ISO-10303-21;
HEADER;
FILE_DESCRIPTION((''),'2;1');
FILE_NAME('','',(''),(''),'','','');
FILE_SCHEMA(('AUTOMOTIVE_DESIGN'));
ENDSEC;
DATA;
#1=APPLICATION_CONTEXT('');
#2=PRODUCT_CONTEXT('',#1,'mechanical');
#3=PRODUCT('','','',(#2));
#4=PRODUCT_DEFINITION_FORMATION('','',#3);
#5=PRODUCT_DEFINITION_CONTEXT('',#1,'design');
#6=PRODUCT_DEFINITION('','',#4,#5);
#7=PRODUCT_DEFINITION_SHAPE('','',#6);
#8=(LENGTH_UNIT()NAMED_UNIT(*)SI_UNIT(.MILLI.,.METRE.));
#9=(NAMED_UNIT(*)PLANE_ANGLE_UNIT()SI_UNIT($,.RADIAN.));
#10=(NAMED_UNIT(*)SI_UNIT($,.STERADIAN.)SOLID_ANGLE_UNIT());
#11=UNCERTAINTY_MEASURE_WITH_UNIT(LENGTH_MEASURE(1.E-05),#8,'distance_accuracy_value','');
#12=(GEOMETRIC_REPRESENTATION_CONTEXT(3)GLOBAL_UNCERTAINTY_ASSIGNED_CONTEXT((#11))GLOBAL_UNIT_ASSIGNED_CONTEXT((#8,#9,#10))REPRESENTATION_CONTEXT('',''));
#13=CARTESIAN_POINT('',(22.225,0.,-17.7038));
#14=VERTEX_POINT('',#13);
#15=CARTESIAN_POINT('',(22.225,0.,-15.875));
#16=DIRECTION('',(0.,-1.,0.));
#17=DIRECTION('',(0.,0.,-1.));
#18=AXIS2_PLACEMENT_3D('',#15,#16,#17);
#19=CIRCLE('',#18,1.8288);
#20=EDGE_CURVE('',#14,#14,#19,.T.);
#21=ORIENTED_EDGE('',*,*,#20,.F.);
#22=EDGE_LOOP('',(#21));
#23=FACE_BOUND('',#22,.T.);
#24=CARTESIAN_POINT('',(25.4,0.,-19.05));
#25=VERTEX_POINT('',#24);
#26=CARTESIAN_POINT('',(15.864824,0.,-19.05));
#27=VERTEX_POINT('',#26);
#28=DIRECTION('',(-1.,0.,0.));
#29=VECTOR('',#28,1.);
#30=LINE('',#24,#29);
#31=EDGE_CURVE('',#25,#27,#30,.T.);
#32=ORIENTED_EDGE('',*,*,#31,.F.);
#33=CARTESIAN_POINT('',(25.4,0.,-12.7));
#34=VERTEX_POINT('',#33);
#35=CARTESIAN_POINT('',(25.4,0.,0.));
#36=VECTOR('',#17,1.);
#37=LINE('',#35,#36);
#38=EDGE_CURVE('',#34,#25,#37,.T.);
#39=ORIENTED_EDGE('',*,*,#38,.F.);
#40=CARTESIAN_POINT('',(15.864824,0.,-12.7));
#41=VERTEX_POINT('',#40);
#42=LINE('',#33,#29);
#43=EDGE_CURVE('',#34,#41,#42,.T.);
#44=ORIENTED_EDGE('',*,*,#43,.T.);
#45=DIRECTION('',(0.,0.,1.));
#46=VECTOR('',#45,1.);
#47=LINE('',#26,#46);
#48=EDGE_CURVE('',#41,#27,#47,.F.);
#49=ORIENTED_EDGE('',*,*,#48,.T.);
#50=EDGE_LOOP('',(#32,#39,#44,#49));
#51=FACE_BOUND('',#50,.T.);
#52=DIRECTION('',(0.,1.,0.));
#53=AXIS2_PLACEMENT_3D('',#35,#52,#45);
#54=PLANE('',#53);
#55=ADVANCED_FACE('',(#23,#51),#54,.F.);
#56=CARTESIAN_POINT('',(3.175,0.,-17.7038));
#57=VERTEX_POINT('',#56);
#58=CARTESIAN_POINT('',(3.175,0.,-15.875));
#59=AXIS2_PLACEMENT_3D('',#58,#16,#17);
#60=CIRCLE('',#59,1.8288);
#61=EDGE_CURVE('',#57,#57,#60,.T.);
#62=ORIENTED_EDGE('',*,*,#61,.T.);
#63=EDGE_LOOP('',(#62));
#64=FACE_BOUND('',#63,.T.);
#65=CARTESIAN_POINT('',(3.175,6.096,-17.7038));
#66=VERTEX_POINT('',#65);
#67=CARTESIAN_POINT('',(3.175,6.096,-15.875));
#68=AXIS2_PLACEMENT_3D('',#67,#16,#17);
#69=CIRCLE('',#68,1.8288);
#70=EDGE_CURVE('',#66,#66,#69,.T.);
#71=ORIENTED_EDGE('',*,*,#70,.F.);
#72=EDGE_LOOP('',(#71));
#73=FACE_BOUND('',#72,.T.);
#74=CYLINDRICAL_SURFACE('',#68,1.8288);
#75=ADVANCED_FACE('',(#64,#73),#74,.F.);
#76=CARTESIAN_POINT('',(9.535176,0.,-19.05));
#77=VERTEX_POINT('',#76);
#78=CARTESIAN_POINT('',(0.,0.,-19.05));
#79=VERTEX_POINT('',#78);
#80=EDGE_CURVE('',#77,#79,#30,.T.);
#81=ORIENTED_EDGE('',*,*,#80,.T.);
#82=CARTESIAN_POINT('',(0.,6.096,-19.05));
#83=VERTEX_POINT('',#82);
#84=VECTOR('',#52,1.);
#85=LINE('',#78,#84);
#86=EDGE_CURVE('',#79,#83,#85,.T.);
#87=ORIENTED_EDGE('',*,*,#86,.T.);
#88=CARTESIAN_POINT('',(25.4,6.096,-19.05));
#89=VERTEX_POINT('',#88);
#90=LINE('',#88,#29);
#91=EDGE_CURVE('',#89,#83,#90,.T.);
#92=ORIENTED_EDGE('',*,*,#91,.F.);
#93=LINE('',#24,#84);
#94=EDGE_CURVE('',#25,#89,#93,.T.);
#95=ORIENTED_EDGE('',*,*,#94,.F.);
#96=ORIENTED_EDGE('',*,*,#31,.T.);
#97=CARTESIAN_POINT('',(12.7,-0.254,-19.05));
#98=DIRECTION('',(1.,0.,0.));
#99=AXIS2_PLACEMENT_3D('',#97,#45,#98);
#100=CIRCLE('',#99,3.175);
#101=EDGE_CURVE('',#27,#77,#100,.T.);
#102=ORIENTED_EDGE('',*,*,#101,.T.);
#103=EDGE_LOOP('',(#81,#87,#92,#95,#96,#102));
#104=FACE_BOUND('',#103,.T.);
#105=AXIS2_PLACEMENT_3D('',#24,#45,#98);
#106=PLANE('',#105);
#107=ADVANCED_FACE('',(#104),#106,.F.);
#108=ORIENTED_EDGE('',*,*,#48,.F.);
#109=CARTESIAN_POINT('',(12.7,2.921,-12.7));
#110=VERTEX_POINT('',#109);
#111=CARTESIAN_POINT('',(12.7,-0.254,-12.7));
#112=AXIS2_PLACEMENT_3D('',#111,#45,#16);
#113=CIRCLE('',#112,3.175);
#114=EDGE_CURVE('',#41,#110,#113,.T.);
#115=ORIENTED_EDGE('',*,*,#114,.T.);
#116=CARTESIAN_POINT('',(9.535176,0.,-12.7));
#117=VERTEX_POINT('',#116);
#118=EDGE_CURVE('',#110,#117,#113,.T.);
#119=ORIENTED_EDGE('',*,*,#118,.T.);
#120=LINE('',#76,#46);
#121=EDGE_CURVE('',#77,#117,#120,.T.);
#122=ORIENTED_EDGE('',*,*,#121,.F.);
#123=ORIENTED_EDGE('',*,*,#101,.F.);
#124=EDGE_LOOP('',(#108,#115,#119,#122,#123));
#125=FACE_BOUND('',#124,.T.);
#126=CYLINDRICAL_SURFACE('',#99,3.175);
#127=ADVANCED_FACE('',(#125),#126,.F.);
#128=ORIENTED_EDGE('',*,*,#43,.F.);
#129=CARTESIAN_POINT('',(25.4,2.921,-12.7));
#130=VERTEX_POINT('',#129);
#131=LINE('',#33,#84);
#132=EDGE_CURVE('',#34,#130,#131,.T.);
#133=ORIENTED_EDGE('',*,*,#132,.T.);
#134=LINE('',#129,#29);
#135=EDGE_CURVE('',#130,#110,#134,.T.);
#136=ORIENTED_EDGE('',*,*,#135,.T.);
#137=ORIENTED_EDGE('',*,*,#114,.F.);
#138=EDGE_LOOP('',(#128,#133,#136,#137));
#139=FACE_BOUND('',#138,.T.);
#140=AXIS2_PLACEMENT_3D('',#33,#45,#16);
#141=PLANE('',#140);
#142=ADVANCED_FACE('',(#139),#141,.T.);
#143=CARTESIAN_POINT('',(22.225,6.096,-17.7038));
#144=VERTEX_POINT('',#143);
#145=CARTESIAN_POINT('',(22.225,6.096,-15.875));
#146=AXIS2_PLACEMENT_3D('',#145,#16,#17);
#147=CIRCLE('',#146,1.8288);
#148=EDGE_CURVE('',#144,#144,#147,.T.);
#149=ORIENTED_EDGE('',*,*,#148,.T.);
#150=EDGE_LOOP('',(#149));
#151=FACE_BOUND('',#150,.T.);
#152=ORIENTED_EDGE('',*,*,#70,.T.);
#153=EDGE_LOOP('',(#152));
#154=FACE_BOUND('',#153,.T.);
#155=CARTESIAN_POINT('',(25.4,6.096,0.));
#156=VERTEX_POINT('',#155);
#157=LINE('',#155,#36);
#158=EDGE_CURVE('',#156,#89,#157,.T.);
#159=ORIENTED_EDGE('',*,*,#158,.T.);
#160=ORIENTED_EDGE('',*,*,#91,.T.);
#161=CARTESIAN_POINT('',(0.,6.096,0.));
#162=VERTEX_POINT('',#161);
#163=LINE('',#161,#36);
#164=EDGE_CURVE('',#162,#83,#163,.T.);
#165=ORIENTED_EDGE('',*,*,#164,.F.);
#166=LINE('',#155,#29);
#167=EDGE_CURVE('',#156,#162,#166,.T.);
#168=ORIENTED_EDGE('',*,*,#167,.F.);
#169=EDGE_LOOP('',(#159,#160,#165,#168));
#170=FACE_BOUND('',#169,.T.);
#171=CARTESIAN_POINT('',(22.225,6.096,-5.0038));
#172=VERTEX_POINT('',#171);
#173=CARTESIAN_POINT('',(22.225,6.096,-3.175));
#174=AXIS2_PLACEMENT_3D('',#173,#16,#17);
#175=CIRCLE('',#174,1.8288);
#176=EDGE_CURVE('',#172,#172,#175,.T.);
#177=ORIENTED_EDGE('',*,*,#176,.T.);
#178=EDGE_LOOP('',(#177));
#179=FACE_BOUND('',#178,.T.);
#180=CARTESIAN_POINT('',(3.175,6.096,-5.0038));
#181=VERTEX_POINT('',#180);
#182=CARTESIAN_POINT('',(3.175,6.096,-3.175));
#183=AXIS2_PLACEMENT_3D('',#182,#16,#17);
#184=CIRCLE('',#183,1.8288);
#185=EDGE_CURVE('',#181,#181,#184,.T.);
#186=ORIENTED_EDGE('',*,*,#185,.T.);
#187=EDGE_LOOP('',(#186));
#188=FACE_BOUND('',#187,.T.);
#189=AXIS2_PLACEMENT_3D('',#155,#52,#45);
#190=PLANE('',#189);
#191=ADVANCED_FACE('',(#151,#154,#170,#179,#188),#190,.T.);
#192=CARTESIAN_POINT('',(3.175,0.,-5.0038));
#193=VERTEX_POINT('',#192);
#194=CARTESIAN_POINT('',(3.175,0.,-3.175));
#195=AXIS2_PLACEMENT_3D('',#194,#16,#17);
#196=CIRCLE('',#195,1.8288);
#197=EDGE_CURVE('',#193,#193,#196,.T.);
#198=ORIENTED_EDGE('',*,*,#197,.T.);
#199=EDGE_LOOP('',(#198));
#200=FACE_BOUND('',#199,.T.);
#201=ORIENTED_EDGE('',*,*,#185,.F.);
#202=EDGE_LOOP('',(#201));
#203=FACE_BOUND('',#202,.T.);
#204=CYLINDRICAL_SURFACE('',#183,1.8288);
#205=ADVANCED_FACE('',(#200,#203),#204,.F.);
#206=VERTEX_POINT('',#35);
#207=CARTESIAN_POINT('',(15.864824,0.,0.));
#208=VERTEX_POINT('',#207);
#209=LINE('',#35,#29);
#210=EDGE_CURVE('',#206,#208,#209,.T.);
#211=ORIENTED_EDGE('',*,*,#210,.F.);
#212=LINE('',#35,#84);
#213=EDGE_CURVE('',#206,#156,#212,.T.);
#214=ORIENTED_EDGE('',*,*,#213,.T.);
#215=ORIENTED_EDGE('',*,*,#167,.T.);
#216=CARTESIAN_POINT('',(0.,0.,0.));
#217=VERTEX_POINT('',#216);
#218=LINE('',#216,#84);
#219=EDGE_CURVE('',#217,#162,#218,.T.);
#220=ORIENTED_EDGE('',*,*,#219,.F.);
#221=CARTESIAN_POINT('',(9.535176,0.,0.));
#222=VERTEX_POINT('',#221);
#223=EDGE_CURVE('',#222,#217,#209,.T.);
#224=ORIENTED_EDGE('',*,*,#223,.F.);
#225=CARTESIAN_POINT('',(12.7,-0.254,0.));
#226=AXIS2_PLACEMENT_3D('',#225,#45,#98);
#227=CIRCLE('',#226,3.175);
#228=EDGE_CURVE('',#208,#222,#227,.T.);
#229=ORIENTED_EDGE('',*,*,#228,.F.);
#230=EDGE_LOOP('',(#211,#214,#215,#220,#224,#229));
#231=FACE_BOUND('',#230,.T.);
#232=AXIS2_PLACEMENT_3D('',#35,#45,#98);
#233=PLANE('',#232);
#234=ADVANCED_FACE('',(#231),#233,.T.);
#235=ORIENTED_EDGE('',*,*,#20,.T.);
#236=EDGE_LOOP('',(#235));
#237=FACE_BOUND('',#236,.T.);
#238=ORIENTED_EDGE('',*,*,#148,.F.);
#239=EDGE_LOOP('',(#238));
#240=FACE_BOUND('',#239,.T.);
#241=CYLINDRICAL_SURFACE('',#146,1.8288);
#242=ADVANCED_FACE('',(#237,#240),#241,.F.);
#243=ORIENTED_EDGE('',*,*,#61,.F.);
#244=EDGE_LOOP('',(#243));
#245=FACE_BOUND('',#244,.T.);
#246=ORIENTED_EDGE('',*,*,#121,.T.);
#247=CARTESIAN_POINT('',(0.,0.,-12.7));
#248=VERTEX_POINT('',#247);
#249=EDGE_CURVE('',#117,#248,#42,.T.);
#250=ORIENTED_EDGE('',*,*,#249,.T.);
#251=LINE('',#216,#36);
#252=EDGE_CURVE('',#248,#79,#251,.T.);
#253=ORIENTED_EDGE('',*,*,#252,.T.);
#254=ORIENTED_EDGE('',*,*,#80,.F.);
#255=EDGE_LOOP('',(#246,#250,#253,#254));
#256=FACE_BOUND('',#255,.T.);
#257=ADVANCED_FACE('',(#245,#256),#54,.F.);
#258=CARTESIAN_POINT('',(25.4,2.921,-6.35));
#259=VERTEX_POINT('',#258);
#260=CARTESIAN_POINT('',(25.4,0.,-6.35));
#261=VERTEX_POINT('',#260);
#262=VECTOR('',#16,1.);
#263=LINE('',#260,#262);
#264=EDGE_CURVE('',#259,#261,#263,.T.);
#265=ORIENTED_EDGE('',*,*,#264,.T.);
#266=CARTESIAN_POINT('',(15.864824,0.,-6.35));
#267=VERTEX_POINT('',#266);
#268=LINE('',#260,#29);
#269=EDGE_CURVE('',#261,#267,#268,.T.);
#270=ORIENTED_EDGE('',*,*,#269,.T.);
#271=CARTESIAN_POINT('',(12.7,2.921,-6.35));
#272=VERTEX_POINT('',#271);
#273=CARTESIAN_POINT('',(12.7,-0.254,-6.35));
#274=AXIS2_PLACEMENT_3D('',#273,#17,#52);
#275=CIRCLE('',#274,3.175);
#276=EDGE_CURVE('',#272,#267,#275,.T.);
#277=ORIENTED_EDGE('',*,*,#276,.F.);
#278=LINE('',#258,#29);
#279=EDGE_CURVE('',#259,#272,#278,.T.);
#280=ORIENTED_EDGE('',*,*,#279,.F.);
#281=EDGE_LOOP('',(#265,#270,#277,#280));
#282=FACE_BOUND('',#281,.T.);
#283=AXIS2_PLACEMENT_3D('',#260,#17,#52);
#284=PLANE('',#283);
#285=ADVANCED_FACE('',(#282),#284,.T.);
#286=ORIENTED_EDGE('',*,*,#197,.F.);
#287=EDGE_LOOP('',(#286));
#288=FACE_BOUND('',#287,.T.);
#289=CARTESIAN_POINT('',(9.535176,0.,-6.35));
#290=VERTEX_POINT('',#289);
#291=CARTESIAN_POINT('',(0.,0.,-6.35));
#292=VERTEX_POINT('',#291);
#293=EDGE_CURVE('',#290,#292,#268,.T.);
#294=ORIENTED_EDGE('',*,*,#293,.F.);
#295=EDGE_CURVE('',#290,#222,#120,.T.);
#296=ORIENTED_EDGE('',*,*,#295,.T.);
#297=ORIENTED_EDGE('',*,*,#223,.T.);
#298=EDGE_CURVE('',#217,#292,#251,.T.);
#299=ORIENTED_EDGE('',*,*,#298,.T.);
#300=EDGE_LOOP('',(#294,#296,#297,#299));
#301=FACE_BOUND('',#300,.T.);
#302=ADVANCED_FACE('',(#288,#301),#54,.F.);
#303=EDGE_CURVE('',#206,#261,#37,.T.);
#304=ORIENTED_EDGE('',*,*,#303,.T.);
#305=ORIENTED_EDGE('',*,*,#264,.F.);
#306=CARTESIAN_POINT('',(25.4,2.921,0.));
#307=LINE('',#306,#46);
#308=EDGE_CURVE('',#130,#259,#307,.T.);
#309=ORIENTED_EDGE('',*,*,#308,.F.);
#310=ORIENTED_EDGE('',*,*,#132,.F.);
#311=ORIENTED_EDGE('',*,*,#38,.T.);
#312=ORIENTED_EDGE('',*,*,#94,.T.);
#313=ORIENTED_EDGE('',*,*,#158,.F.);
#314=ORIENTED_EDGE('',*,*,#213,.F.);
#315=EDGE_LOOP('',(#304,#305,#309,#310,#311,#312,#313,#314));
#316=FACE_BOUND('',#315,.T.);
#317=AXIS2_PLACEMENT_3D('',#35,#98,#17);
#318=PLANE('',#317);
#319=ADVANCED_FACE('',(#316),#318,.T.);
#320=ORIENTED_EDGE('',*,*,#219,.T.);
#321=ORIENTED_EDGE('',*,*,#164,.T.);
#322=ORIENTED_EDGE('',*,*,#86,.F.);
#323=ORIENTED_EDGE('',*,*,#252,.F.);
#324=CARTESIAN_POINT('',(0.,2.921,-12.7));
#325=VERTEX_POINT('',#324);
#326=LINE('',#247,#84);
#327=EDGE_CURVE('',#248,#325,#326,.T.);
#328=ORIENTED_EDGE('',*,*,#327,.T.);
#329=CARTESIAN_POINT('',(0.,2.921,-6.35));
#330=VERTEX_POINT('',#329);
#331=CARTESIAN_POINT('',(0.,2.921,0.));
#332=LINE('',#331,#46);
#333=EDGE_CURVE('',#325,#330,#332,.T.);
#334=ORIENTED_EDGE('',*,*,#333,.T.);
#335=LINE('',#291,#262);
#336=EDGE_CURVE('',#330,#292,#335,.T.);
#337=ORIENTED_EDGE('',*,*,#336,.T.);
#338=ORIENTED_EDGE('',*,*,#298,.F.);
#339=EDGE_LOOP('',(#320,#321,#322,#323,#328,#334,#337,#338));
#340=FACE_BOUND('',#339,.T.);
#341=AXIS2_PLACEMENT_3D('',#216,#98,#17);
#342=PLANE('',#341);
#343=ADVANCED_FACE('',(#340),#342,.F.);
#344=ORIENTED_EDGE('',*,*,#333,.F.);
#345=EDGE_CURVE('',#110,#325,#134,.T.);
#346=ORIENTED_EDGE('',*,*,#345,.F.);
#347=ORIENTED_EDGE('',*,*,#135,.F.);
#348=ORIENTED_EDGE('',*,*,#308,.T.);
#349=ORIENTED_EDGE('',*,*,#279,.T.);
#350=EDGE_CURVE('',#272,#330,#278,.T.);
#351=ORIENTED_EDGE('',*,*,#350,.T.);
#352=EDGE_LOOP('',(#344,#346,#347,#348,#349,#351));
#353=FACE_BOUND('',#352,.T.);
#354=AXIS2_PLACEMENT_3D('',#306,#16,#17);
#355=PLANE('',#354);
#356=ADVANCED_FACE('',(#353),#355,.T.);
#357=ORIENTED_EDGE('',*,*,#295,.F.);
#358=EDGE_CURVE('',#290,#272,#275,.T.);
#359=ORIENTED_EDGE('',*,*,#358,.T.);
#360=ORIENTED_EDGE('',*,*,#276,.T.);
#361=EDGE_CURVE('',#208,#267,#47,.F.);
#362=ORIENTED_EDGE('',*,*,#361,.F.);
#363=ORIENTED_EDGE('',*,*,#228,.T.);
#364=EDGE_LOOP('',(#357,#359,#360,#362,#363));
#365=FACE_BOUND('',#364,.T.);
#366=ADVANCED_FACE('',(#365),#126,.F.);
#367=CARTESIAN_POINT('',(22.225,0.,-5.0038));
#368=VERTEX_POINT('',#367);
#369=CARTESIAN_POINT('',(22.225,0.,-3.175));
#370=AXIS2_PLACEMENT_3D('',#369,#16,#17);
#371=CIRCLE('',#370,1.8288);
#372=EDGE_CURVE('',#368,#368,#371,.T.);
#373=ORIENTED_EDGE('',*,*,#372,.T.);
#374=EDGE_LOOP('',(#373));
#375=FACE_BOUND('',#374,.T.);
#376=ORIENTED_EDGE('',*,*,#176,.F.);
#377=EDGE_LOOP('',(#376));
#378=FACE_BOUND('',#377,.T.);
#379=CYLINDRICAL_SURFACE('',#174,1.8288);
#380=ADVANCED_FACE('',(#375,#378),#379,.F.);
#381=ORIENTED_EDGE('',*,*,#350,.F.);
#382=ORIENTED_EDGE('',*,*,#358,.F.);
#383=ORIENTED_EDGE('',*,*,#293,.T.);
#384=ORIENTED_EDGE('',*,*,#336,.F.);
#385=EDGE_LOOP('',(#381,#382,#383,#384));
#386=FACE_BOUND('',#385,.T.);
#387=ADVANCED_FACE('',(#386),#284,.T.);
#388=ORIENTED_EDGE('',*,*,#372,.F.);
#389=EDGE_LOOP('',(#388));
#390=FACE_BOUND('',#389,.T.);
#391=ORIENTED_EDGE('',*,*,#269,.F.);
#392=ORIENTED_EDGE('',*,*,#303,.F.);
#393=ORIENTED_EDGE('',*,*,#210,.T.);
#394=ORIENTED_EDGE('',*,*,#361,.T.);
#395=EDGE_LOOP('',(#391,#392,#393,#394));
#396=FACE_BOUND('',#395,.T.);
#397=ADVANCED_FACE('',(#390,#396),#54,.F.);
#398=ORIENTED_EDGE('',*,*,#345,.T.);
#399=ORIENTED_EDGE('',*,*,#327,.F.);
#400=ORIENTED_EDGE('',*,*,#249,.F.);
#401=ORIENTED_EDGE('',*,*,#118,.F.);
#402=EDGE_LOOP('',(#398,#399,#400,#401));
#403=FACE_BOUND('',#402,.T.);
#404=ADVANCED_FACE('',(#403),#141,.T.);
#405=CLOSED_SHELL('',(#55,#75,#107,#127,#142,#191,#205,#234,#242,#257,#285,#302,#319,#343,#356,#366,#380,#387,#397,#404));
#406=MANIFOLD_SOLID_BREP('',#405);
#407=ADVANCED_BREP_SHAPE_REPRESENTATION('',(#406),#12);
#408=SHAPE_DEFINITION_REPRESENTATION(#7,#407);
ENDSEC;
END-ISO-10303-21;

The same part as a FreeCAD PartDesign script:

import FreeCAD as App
import Part
import Sketcher
from FreeCAD import Vector
Q = App.Units.Quantity

doc = App.newDocument("Part")
body = doc.addObject("PartDesign::Body", "Body")

sketch1 = body.newObject("Sketcher::SketchObject", "Sketch")
sketch1.AttachmentSupport = (doc.getObject("YZ_Plane"), [""])
sketch1.MapMode = "FlatFace"
sketch1.addGeometry([
    Part.LineSegment(Vector(6.096, 0, 0), Vector(0, 0, 0)),
    Part.LineSegment(Vector(0, 0, 0), Vector(0, -6.35, 0)),
    Part.LineSegment(Vector(0, -6.35, 0), Vector(2.921, -6.35, 0)),
    Part.LineSegment(Vector(2.921, -6.35, 0), Vector(2.921, -12.7, 0)),
    Part.LineSegment(Vector(2.921, -12.7, 0), Vector(0, -12.7, 0)),
    Part.LineSegment(Vector(0, -12.7, 0), Vector(0, -19.05, 0)),
    Part.LineSegment(Vector(0, -19.05, 0), Vector(6.096, -19.05, 0)),
    Part.LineSegment(Vector(6.096, -19.05, 0), Vector(6.096, 0, 0)),
], False)
sketch1.addConstraint([
    Sketcher.Constraint("Coincident", 0, 2, 1, 1),
    Sketcher.Constraint("Coincident", 1, 2, 2, 1),
    Sketcher.Constraint("Coincident", 2, 2, 3, 1),
    Sketcher.Constraint("Coincident", 3, 2, 4, 1),
    Sketcher.Constraint("Coincident", 4, 2, 5, 1),
    Sketcher.Constraint("Coincident", 5, 2, 6, 1),
    Sketcher.Constraint("Coincident", 6, 2, 7, 1),
    Sketcher.Constraint("Coincident", 7, 2, 0, 1),
    Sketcher.Constraint("Horizontal", 0),
    Sketcher.Constraint("Vertical", 1),
    Sketcher.Constraint("Horizontal", 2),
    Sketcher.Constraint("Vertical", 3),
    Sketcher.Constraint("Horizontal", 4),
    Sketcher.Constraint("Vertical", 5),
    Sketcher.Constraint("Horizontal", 6),
    Sketcher.Constraint("Vertical", 7),
    Sketcher.Constraint("Coincident", 0, 2, -1, 1),
    Sketcher.Constraint("PointOnObject", 4, 2, -2),
    Sketcher.Constraint("Equal", 1, 3),
    Sketcher.Constraint("Equal", 3, 5),
    Sketcher.Constraint("DistanceX", 0, 2, 0, 1, Q("0.24 in")),
    Sketcher.Constraint("DistanceY", 1, 2, 1, 1, Q("0.25 in")),
    Sketcher.Constraint("DistanceX", 2, 1, 2, 2, Q("0.115 in")),
])
pad1 = body.newObject("PartDesign::Pad", "Pad")
pad1.Profile = sketch1
pad1.Length = Q("1 in")

sketch2 = body.newObject("Sketcher::SketchObject", "Sketch001")
sketch2.AttachmentSupport = (doc.getObject("XY_Plane"), [""])
sketch2.MapMode = "FlatFace"
sketch2.addGeometry(Part.Circle(Vector(12.7, -0.254, 0), Vector(0, 0, 1), 3.175), False)
sketch2.addConstraint([
    Sketcher.Constraint("Diameter", 0, Q("0.25 in")),
    Sketcher.Constraint("DistanceX", -1, 1, 0, 3, Q("0.5 in")),
    Sketcher.Constraint("DistanceY", 0, 3, -1, 1, Q("0.01 in")),
])
pocket1 = body.newObject("PartDesign::Pocket", "Pocket")
pocket1.Profile = sketch2
pocket1.Type = "ThroughAll"

sketch3 = body.newObject("Sketcher::SketchObject", "Sketch002")
sketch3.AttachmentSupport = (doc.getObject("XZ_Plane"), [""])
sketch3.MapMode = "FlatFace"
sketch3.addGeometry([
    Part.Circle(Vector(3.175, -3.175, 0), Vector(0, 0, 1), 1.8288),
    Part.Circle(Vector(3.175, -15.875, 0), Vector(0, 0, 1), 1.8288),
    Part.Circle(Vector(22.225, -3.175, 0), Vector(0, 0, 1), 1.8288),
    Part.Circle(Vector(22.225, -15.875, 0), Vector(0, 0, 1), 1.8288),
], False)
sketch3.addConstraint([
    Sketcher.Constraint("Equal", 0, 1),
    Sketcher.Constraint("Equal", 1, 2),
    Sketcher.Constraint("Equal", 2, 3),
    Sketcher.Constraint("Horizontal", 0, 3, 2, 3),
    Sketcher.Constraint("Horizontal", 1, 3, 3, 3),
    Sketcher.Constraint("Vertical", 0, 3, 1, 3),
    Sketcher.Constraint("Vertical", 2, 3, 3, 3),
    Sketcher.Constraint("Diameter", 0, Q("0.144 in")),
    Sketcher.Constraint("DistanceY", 1, 3, 0, 3, Q("0.5 in")),
    Sketcher.Constraint("DistanceX", 0, 3, 2, 3, Q("0.75 in")),
    Sketcher.Constraint("DistanceX", -1, 1, 0, 3, Q("0.125 in")),
    Sketcher.Constraint("DistanceY", 0, 3, -1, 1, Q("0.125 in")),
])
pocket2 = body.newObject("PartDesign::Pocket", "Pocket001")
pocket2.Profile = sketch3
pocket2.Type = "ThroughAll"

doc.recompute()
